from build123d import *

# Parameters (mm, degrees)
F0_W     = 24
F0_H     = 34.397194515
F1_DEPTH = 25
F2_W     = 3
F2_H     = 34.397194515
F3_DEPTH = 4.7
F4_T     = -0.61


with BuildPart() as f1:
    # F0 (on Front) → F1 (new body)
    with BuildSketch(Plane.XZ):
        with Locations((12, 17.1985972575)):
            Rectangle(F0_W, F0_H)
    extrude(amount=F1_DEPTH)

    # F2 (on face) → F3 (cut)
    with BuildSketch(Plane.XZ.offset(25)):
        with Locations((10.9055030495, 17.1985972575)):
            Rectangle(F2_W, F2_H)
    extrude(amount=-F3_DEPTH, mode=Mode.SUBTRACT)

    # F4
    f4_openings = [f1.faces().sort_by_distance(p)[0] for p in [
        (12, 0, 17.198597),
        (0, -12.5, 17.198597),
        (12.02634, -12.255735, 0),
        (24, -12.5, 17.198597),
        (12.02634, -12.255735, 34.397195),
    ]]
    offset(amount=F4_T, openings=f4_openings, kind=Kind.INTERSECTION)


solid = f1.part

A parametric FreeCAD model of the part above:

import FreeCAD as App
import Part
import Sketcher

V = App.Vector
Q = App.Units.Quantity


def faces_at(feature, points):
    """Names of the faces that lie closest to the given points."""
    faces = feature.Shape.Faces
    near = lambda p: min(range(len(faces)), key=lambda i: faces[i].distToShape(Part.Vertex(*p))[0])
    return sorted({f"Face{near(p) + 1}" for p in points})


def add_polygon(sketch, points):
    """Adds a closed chain of lines whose ends are joined by coincident constraints."""
    first, n = sketch.GeometryCount, len(points)
    for a, b in zip(points, points[1:] + points[:1]):
        sketch.addGeometry(Part.LineSegment(App.Vector(*a, 0), App.Vector(*b, 0)), False)
    for i in range(n):
        sketch.addConstraint(Sketcher.Constraint("Coincident", first + i, 2, first + (i + 1) % n, 1))

doc = App.newDocument("Part")
params = doc.addObject("Spreadsheet::Sheet", "Params")
for row, (alias, value) in enumerate([
    ("sketch1_width", "24 mm"),
    ("pad1_length", "25 mm"),
    ("sketch2_width", "3 mm"),
    ("pocket1_length", "4.7 mm"),
    ("thickness_wall", "0.61 mm"),
], start=1):
    params.set(f"A{row}", alias)
    params.set(f"B{row}", "=" + value)
    params.setAlias(f"B{row}", alias)

body = doc.addObject("PartDesign::Body", "Body")

# Sketch on XZ plane
sketch1 = body.newObject("Sketcher::SketchObject", "Sketch")
sketch1.AttachmentSupport = (doc.getObject("XZ_Plane"), [""])
sketch1.MapMode = "FlatFace"
add_polygon(sketch1, [(0, 34), (0, 0), (24, 0), (24, 34)])  # lines 0-3
sketch1.addConstraint([
    Sketcher.Constraint("Vertical", 0),
    Sketcher.Constraint("Horizontal", 1),
    Sketcher.Constraint("Vertical", 2),
    Sketcher.Constraint("Horizontal", 3),
    Sketcher.Constraint("Coincident", 0, 2, -1, 1),
    Sketcher.Constraint("DistanceX", 1, 1, 1, 2, Q("24 mm")),
    Sketcher.Constraint("DistanceY", 0, 2, 0, 1, Q("34.397195 mm")),
])
sketch1.setExpression("Constraints[9]", "Params.sketch1_width")
pad1 = body.newObject("PartDesign::Pad", "Pad")
pad1.Profile = sketch1
pad1.setExpression("Length", "Params.pad1_length")

# Sketch on XZ plane
sketch2 = body.newObject("Sketcher::SketchObject", "Sketch001")
sketch2.AttachmentSupport = (doc.getObject("XZ_Plane"), [""])
sketch2.MapMode = "FlatFace"
sketch2.AttachmentOffset = App.Placement(V(0, 0, 25), App.Rotation())
add_polygon(sketch2, [(9.4, 34.4), (9.4, 0), (12.4, 0), (12.4, 34.4)])  # lines 0-3
sketch2.addConstraint([
    Sketcher.Constraint("Vertical", 0),
    Sketcher.Constraint("Horizontal", 1),
    Sketcher.Constraint("Vertical", 2),
    Sketcher.Constraint("Horizontal", 3),
    Sketcher.Constraint("PointOnObject", 0, 2, -1),
    Sketcher.Constraint("DistanceX", 1, 1, 1, 2, Q("3 mm")),
    Sketcher.Constraint("DistanceY", 0, 2, 0, 1, Q("34.397195 mm")),
    Sketcher.Constraint("DistanceX", -1, 1, 0, 2, Q("9.405503 mm")),
])
sketch2.setExpression("Constraints[9]", "Params.sketch2_width")
pocket1 = body.newObject("PartDesign::Pocket", "Pocket")
pocket1.Profile = sketch2
pocket1.setExpression("Length", "Params.pocket1_length")
doc.recompute()

thickness = body.newObject("PartDesign::Thickness", "Thickness")
thickness.Base = (pocket1, faces_at(pocket1, [
    (12, 0, 17.199),
    (0, -12.5, 17.199),
    (12, -12.5, 0),
    (24, -12.5, 17.199),
    (12, -12.5, 34.397),
]))
thickness.setExpression("Value", "Params.thickness_wall")
thickness.Reversed = True
thickness.Join = "Intersection"

doc.recompute()
